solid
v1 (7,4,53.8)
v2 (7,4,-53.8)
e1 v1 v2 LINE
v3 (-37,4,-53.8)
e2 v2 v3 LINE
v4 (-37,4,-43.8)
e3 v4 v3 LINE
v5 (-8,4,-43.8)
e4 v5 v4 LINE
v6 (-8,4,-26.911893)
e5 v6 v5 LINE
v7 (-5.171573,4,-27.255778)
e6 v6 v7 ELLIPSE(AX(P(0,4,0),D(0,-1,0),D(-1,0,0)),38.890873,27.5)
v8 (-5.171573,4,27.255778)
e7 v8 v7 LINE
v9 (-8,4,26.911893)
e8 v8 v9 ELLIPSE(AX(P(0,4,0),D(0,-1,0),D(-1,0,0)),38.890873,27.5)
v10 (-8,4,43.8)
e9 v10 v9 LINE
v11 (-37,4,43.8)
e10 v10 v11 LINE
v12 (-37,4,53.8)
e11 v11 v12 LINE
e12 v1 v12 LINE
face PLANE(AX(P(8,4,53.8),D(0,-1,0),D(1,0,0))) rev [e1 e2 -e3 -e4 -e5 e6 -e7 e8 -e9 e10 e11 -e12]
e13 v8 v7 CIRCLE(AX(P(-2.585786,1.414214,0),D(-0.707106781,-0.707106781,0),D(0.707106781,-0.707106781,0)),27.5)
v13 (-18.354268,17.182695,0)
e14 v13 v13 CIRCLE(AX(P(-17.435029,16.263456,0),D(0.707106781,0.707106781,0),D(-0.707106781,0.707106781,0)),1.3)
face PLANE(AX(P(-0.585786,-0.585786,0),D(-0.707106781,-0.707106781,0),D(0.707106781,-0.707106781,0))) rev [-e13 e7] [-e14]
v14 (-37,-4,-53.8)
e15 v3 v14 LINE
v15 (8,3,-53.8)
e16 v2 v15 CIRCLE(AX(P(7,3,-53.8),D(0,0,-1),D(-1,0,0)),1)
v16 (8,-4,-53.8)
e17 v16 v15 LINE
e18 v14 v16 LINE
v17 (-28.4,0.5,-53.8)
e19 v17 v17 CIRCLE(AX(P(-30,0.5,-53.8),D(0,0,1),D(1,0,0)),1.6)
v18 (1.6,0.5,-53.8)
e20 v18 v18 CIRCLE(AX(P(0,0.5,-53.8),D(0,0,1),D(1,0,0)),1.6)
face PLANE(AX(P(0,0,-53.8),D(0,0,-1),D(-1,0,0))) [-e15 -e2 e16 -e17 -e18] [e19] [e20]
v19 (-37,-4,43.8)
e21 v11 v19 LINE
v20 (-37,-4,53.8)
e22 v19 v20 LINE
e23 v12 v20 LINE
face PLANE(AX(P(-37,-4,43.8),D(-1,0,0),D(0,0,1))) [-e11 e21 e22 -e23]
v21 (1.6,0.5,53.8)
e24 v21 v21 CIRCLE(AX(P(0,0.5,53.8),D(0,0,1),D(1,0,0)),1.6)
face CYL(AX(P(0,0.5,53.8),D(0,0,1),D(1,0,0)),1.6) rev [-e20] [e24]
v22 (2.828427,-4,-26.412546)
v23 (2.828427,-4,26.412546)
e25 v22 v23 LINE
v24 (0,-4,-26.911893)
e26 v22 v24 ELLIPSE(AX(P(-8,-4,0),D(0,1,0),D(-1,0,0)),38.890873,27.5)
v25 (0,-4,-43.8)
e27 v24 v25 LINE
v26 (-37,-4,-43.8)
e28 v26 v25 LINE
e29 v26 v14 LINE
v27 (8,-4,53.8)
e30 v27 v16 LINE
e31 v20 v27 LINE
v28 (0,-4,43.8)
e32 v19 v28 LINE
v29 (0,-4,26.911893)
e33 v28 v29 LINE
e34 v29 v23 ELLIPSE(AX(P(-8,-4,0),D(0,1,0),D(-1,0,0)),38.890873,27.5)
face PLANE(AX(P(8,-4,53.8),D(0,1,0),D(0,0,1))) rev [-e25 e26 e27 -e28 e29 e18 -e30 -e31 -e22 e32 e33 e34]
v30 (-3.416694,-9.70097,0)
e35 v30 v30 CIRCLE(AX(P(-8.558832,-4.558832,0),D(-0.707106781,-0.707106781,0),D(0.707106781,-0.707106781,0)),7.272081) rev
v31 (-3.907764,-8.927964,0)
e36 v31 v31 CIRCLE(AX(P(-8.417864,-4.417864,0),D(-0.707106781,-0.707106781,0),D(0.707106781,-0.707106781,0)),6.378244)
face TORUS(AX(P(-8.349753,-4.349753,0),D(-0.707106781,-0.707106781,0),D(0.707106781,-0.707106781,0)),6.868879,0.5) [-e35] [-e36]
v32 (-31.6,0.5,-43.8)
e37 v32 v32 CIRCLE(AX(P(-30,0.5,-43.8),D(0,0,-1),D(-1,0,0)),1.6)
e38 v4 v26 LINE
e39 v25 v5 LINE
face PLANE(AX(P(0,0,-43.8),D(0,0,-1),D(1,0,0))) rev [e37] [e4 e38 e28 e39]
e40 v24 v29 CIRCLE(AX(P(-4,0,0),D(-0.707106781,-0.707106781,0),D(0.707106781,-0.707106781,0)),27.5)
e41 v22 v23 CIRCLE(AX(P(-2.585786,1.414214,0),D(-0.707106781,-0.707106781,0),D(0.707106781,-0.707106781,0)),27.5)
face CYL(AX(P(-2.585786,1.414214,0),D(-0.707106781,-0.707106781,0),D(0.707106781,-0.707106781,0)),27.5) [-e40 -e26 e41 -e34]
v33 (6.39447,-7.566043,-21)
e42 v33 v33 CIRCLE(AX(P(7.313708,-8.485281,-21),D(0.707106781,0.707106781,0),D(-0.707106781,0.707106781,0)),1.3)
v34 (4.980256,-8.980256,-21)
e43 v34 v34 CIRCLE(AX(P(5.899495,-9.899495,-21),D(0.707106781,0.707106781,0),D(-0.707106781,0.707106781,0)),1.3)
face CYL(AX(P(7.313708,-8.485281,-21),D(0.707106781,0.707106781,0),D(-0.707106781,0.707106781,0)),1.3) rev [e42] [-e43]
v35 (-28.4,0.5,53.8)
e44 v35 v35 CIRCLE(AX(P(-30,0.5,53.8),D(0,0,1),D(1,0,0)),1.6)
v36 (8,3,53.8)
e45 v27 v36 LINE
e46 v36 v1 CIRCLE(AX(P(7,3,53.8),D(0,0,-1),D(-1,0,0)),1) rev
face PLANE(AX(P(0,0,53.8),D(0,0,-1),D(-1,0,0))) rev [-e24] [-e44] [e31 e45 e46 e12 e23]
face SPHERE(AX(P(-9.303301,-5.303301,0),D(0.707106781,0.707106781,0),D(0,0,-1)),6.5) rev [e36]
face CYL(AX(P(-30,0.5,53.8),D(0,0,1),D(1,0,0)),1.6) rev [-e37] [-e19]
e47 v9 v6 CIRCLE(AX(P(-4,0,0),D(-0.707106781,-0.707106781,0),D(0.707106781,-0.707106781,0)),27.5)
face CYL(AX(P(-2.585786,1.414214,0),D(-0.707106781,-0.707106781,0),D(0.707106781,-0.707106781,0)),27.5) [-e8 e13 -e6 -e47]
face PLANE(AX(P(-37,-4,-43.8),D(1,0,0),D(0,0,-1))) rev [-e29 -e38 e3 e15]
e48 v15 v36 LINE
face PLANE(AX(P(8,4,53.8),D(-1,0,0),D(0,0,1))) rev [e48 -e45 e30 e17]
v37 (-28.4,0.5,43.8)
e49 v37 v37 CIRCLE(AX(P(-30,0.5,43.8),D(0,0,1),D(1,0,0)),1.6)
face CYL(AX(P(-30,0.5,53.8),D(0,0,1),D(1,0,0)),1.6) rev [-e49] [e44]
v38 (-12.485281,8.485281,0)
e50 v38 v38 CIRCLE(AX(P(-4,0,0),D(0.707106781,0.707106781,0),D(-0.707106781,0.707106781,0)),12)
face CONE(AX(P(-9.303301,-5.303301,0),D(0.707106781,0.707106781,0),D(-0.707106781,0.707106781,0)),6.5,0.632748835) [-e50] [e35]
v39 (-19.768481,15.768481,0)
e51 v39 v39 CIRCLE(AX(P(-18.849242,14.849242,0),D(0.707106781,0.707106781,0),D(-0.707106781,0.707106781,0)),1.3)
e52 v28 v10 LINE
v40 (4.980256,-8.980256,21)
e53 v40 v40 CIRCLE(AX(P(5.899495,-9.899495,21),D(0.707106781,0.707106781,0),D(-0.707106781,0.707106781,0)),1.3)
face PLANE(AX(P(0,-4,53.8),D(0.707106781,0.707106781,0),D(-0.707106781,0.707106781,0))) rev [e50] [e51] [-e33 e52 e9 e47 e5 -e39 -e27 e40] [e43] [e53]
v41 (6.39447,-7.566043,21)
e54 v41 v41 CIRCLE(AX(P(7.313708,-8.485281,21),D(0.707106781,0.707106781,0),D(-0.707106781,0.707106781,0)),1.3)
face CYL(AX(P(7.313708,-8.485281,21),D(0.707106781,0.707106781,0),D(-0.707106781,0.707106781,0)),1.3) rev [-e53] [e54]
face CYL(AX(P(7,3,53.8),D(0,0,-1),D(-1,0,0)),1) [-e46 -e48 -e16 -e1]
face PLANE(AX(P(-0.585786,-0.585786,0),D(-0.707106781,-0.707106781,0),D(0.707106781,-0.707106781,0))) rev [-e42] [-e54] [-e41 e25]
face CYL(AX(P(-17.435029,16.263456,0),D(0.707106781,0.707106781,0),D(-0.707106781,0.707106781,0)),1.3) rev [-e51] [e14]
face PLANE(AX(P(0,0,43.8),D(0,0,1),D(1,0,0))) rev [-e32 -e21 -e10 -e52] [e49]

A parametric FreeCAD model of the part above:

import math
import FreeCAD as App
import Part
import Sketcher
from FreeCAD import Vector


def edges_at(feature, points):
    """Names of the edges that pass closest to the given points."""
    edges = feature.Shape.Edges
    near = lambda p: min(range(len(edges)), key=lambda i: edges[i].distToShape(Part.Vertex(*p))[0])
    return sorted({f"Edge{near(p) + 1}" for p in points})


def add_polygon(sketch, points):
    """Adds a closed chain of lines whose ends are joined by coincident constraints."""
    first, n = sketch.GeometryCount, len(points)
    for a, b in zip(points, points[1:] + points[:1]):
        sketch.addGeometry(Part.LineSegment(App.Vector(*a, 0), App.Vector(*b, 0)), False)
    for i in range(n):
        sketch.addConstraint(Sketcher.Constraint("Coincident", first + i, 2, first + (i + 1) % n, 1))

doc = App.newDocument("Part")
params = doc.addObject("Spreadsheet::Sheet", "Params")
for row, (alias, value) in enumerate([
    ("sketch1_width", "16 mm"),
    ("pad1_length", "107.6 mm"),
    ("sketch2_diameter", "55 mm"),
    ("pad2_length", "2 mm"),
    ("sketch3_diameter", "2.6 mm"),
    ("hole_diameter", "2.6 mm"),
    ("sketch4_radius", "6.5 mm"),
    ("sketch4_width", "12 mm"),
    ("sketch4_height", "1 mm"),
    ("revolution_angle", "360 deg"),
    ("fillet_radius", "0.5 mm"),
    ("sketch5_diameter", "3.2 mm"),
    ("hole2_diameter", "3.2 mm"),
    ("sketch6_width", "29 mm"),
    ("sketch6_width2", "37 mm"),
    ("sketch6_height", "8 mm"),
    ("pad3_length", "10 mm"),
    ("sketch7_diameter", "3.2 mm"),
    ("hole3_diameter", "3.2 mm"),
    ("fillet2_radius", "1 mm"),
], start=1):
    params.set(f"A{row}", alias)
    params.set(f"B{row}", "=" + value)
    params.setAlias(f"B{row}", alias)

body = doc.addObject("PartDesign::Body", "Body")

sketch1 = body.newObject("Sketcher::SketchObject", "Sketch")
sketch1.AttachmentSupport = (doc.getObject("XY_Plane"), [""])
sketch1.MapMode = "FlatFace"
add_polygon(sketch1, [(8, 4), (-8, 4), (0, -4), (8, -4)])
sketch1.addConstraint(Sketcher.Constraint("Horizontal", 0))
sketch1.addConstraint(Sketcher.Constraint("Horizontal", 2))
sketch1.addConstraint(Sketcher.Constraint("Vertical", 3))
sketch1.addConstraint(Sketcher.Constraint("Symmetric", 0, 2, 2, 2, -1, 1))
sketch1.addConstraint(Sketcher.Constraint("PointOnObject", 1, 2, -2))
sketch1.addConstraint(Sketcher.Constraint("Equal", 2, 3))
sketch1.addConstraint(Sketcher.Constraint("DistanceX", 0, 2, 0, 1, 16.0))
sketch1.setExpression("Constraints[10]", "Params.sketch1_width")
pad1 = body.newObject("PartDesign::Pad", "Pad")
pad1.Profile = sketch1
pad1.setExpression("Length", "Params.pad1_length")
pad1.Midplane = True

sketch2 = body.newObject("Sketcher::SketchObject", "Sketch001")
sketch2.Placement = App.Placement(Vector(-2, -2, 0), App.Rotation(Vector(0, 0, 1), Vector(-0.707106781, 0.707106781, 0), Vector(-0.707106781, -0.707106781, 0), "ZXY"))
sketch2.addGeometry(Part.Circle(Vector(0, 3, 0), Vector(0, 0, 1), 28), False)
sketch2.addConstraint(Sketcher.Constraint("PointOnObject", 0, 3, -2))
sketch2.addConstraint(Sketcher.Constraint("Diameter", 0, 55.0))
sketch2.addConstraint(Sketcher.Constraint("DistanceY", -1, 1, 0, 3, 2.828427))
sketch2.setExpression("Constraints[1]", "Params.sketch2_diameter")
pad2 = body.newObject("PartDesign::Pad", "Pad001")
pad2.Profile = sketch2
pad2.setExpression("Length", "Params.pad2_length")
pad2.Reversed = True

sketch3 = body.newObject("Sketcher::SketchObject", "Sketch002")
sketch3.Placement = App.Placement(Vector(-0.585786, -0.585786, 0), App.Rotation(Vector(0.707106781, -0.707106781, 0), Vector(0, 0, -0.999999999), Vector(0.707106781, 0.707106781, 0), "ZXY"))
sketch3.addGeometry(Part.Circle(Vector(-23.8, 0, 0), Vector(0, 0, 1), 1.3), False)
sketch3.addGeometry(Part.Circle(Vector(11.2, 21, 0), Vector(0, 0, 1), 1.3), False)
sketch3.addGeometry(Part.Circle(Vector(11.2, -21, 0), Vector(0, 0, 1), 1.3), False)
sketch3.addConstraint(Sketcher.Constraint("Equal", 0, 1))
sketch3.addConstraint(Sketcher.Constraint("Equal", 1, 2))
sketch3.addConstraint(Sketcher.Constraint("Symmetric", 1, 3, 2, 3, -1))
sketch3.addConstraint(Sketcher.Constraint("PointOnObject", 0, 3, -1))
sketch3.addConstraint(Sketcher.Constraint("Diameter", 0, 2.6))
sketch3.addConstraint(Sketcher.Constraint("DistanceY", -1, 1, 1, 3, 21.0))
sketch3.addConstraint(Sketcher.Constraint("DistanceX", 0, 3, 1, 3, 35.0))
sketch3.addConstraint(Sketcher.Constraint("DistanceX", 0, 3, -1, 1, 23.828427))
sketch3.setExpression("Constraints[4]", "Params.sketch3_diameter")
doc.recompute()
hole = body.newObject("PartDesign::Hole", "Hole")
hole.Profile = sketch3
hole.ThreadType = "None"
hole.setExpression("Diameter", "Params.hole_diameter")
hole.DepthType = "ThroughAll"

sketch4 = body.newObject("Sketcher::SketchObject", "Sketch003")
sketch4.Placement = App.Placement(Vector(-2, 2, 0), App.Rotation(Vector(0, 0, 1), Vector(-0.707106781, -0.707106781, 0), Vector(0.707106781, -0.707106781, 0), "ZXY"))
sketch4.addGeometry(Part.LineSegment(Vector(0, 2.8, 0), Vector(0, 3.8, 0)), False)
sketch4.addGeometry(Part.ArcOfCircle(Part.Circle(Vector(0, 10.3, 0), Vector(0, 0, 1), 6.5), math.radians(180), math.radians(270)), False)
sketch4.addGeometry(Part.LineSegment(Vector(-6.5, 10.3, 0), Vector(-12, 2.8, 0)), False)
sketch4.addGeometry(Part.LineSegment(Vector(-12, 2.8, 0), Vector(0, 2.8, 0)), False)
sketch4.addConstraint(Sketcher.Constraint("Coincident", 0, 2, 1, 2))
sketch4.addConstraint(Sketcher.Constraint("Coincident", 1, 1, 2, 1))
sketch4.addConstraint(Sketcher.Constraint("Coincident", 2, 2, 3, 1))
sketch4.addConstraint(Sketcher.Constraint("Coincident", 3, 2, 0, 1))
sketch4.addConstraint(Sketcher.Constraint("Vertical", 0))
sketch4.addConstraint(Sketcher.Constraint("Horizontal", 3))
sketch4.addConstraint(Sketcher.Constraint("PointOnObject", 1, 3, -2))
sketch4.addConstraint(Sketcher.Constraint("PointOnObject", 0, 2, -2))
sketch4.addConstraint(Sketcher.Constraint("Radius", 1, 6.5))
sketch4.addConstraint(Sketcher.Constraint("DistanceX", 3, 1, 3, 2, 12.0))
sketch4.addConstraint(Sketcher.Constraint("DistanceY", 0, 1, 0, 2, 1.0))
sketch4.addConstraint(Sketcher.Constraint("DistanceY", 0, 2, 1, 1, 6.5))
sketch4.addConstraint(Sketcher.Constraint("DistanceY", -1, 1, 1, 3, 10.328427))
sketch4.setExpression("Constraints[8]", "Params.sketch4_radius")
sketch4.setExpression("Constraints[9]", "Params.sketch4_width")
sketch4.setExpression("Constraints[10]", "Params.sketch4_height")
revolution = body.newObject("PartDesign::Revolution", "Revolution")
revolution.Profile = sketch4
revolution.ReferenceAxis = (sketch4, ["V_Axis"])
revolution.setExpression("Angle", "Params.revolution_angle")
doc.recompute()

fillet = body.newObject("PartDesign::Fillet", "Fillet")
fillet.Base = (revolution, edges_at(revolution, [(-9.303, -5.303, 6.5)]))
fillet.setExpression("Radius", "Params.fillet_radius")

sketch5 = body.newObject("Sketcher::SketchObject", "Sketch004")
sketch5.AttachmentSupport = (doc.getObject("XY_Plane"), [""])
sketch5.MapMode = "FlatFace"
sketch5.AttachmentOffset = App.Placement(Vector(0, 0, 53.8), App.Rotation())
sketch5.addGeometry(Part.Circle(Vector(0, 0.5, 0), Vector(0, 0, 1), 1.6), False)
sketch5.addConstraint(Sketcher.Constraint("PointOnObject", 0, 3, -2))
sketch5.addConstraint(Sketcher.Constraint("Diameter", 0, 3.2))
sketch5.addConstraint(Sketcher.Constraint("DistanceY", -1, 1, 0, 3, 0.5))
sketch5.setExpression("Constraints[1]", "Params.sketch5_diameter")
doc.recompute()
hole2 = body.newObject("PartDesign::Hole", "Hole001")
hole2.Profile = sketch5
hole2.ThreadType = "None"
hole2.setExpression("Diameter", "Params.hole2_diameter")
hole2.DepthType = "ThroughAll"

sketch6 = body.newObject("Sketcher::SketchObject", "Sketch005")
sketch6.AttachmentSupport = (doc.getObject("XY_Plane"), [""])
sketch6.MapMode = "FlatFace"
sketch6.AttachmentOffset = App.Placement(Vector(0, 0, 53.8), App.Rotation())
add_polygon(sketch6, [(0, -4), (-8, 4), (-37, 4), (-37, -4)])
sketch6.addConstraint(Sketcher.Constraint("Horizontal", 1))
sketch6.addConstraint(Sketcher.Constraint("Vertical", 2))
sketch6.addConstraint(Sketcher.Constraint("Horizontal", 3))
sketch6.addConstraint(Sketcher.Constraint("PointOnObject", 3, 2, -2))
sketch6.addConstraint(Sketcher.Constraint("DistanceX", 1, 2, 1, 1, 29.0))
sketch6.addConstraint(Sketcher.Constraint("DistanceX", 3, 1, 3, 2, 37.0))
sketch6.addConstraint(Sketcher.Constraint("DistanceY", 2, 2, 2, 1, 8.0))
sketch6.addConstraint(Sketcher.Constraint("DistanceY", -1, 1, 0, 2, 4.0))
sketch6.setExpression("Constraints[8]", "Params.sketch6_width")
sketch6.setExpression("Constraints[9]", "Params.sketch6_width2")
sketch6.setExpression("Constraints[10]", "Params.sketch6_height")
pad3 = body.newObject("PartDesign::Pad", "Pad002")
pad3.Profile = sketch6
pad3.setExpression("Length", "Params.pad3_length")
pad3.Reversed = True
doc.recompute()

mirrored = body.newObject("PartDesign::Mirrored", "Mirrored")
mirrored.Originals = [pad3]
mirrored.MirrorPlane = (doc.getObject("XY_Plane"), [""])
body.Tip = mirrored

sketch7 = body.newObject("Sketcher::SketchObject", "Sketch006")
sketch7.AttachmentSupport = (doc.getObject("XY_Plane"), [""])
sketch7.MapMode = "FlatFace"
sketch7.AttachmentOffset = App.Placement(Vector(0, 0, 53.8), App.Rotation())
sketch7.addGeometry(Part.Circle(Vector(-30, 0.5, 0), Vector(0, 0, 1), 1.6), False)
sketch7.addConstraint(Sketcher.Constraint("Diameter", 0, 3.2))
sketch7.addConstraint(Sketcher.Constraint("DistanceX", 0, 3, -1, 1, 30.0))
sketch7.addConstraint(Sketcher.Constraint("DistanceY", -1, 1, 0, 3, 0.5))
sketch7.setExpression("Constraints[0]", "Params.sketch7_diameter")
doc.recompute()
hole3 = body.newObject("PartDesign::Hole", "Hole002")
hole3.Profile = sketch7
hole3.ThreadType = "None"
hole3.setExpression("Diameter", "Params.hole3_diameter")
hole3.DepthType = "ThroughAll"
doc.recompute()

fillet2 = body.newObject("PartDesign::Fillet", "Fillet001")
fillet2.Base = (hole3, edges_at(hole3, [(8, 4, 0)]))
fillet2.setExpression("Radius", "Params.fillet2_radius")

doc.recompute()
